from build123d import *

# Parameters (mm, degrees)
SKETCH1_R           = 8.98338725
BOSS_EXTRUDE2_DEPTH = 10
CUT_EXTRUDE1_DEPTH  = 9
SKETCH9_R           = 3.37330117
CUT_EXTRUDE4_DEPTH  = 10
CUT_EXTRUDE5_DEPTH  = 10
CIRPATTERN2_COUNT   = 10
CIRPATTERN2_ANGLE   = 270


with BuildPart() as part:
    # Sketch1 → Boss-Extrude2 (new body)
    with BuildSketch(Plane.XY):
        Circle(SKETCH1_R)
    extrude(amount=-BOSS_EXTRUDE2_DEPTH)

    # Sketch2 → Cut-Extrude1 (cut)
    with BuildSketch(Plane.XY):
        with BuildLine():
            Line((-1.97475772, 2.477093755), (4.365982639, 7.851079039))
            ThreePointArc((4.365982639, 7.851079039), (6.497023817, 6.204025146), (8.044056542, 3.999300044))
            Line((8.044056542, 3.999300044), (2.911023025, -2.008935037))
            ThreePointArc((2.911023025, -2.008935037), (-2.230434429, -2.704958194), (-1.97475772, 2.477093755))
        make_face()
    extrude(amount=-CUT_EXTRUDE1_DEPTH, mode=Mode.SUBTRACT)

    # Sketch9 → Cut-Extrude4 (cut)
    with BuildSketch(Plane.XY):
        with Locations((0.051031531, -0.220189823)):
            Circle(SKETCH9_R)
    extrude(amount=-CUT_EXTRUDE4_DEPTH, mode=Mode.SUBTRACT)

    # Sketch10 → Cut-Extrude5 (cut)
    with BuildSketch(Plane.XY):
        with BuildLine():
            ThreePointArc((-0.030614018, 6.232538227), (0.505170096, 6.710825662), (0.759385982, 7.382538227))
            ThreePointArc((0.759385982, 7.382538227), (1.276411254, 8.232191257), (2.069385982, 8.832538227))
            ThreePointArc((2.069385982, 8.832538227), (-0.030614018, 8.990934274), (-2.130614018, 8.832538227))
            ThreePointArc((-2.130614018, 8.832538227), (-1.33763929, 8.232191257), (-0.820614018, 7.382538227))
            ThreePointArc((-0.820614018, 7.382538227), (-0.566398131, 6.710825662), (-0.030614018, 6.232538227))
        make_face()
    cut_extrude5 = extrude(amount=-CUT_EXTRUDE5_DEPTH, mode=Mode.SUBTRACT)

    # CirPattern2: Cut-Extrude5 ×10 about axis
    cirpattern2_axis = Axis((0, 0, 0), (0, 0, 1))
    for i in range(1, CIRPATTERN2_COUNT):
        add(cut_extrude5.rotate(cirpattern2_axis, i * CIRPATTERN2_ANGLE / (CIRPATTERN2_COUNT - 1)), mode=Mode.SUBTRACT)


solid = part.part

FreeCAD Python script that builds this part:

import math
import FreeCAD as App
import Part
import Sketcher
from FreeCAD import Vector

doc = App.newDocument("Part")
body = doc.addObject("PartDesign::Body", "Body")

# Sketch on XY plane
sketch1 = body.newObject("Sketcher::SketchObject", "Sketch")
sketch1.AttachmentSupport = (doc.getObject("XY_Plane"), [""])
sketch1.MapMode = "FlatFace"
sketch1.addGeometry(Part.Circle(Vector(0, 0, 0), Vector(0, 0, 1), 9), False)
sketch1.addConstraint(Sketcher.Constraint("Coincident", 0, 3, -1, 1))
sketch1.addConstraint(Sketcher.Constraint("Diameter", 0, 17.966774))
pad1 = body.newObject("PartDesign::Pad", "Pad")
pad1.Profile = sketch1
pad1.Length = 10
pad1.Reversed = True

# Sketch on XY plane
sketch2 = body.newObject("Sketcher::SketchObject", "Sketch001")
sketch2.AttachmentSupport = (doc.getObject("XY_Plane"), [""])
sketch2.MapMode = "FlatFace"
sketch2.addGeometry(Part.LineSegment(Vector(4.4, 7.9, 0), Vector(-2, 2.5, 0)), False)
sketch2.addGeometry(Part.ArcOfCircle(Part.Circle(Vector(0.1, -0.2, 0), Vector(0, 0, 1), 3.4), math.radians(127), math.radians(328)), False)
sketch2.addGeometry(Part.LineSegment(Vector(2.9, -2, 0), Vector(8, 4, 0)), False)
sketch2.addGeometry(Part.ArcOfCircle(Part.Circle(Vector(0, 0, 0), Vector(0, 0, 1), 9), math.radians(26), math.radians(61)), False)
sketch2.addConstraint(Sketcher.Constraint("Coincident", 0, 2, 1, 1))
sketch2.addConstraint(Sketcher.Constraint("Coincident", 1, 2, 2, 1))
sketch2.addConstraint(Sketcher.Constraint("Coincident", 2, 2, 3, 1))
sketch2.addConstraint(Sketcher.Constraint("Coincident", 3, 2, 0, 1))
sketch2.addConstraint(Sketcher.Constraint("Coincident", 3, 3, -1, 1))
sketch2.addConstraint(Sketcher.Constraint("Radius", 1, 3.373301))
sketch2.addConstraint(Sketcher.Constraint("Radius", 3, 8.983387))
sketch2.addConstraint(Sketcher.Constraint("DistanceY", -1, 1, 2, 2, 3.9993))
sketch2.addConstraint(Sketcher.Constraint("Distance", 0, 8.311721))
sketch2.addConstraint(Sketcher.Constraint("DistanceX", -1, 1, 1, 3, 0.051032))
sketch2.addConstraint(Sketcher.Constraint("DistanceY", 1, 3, -1, 1, 0.22019))
sketch2.addConstraint(Sketcher.Constraint("DistanceY", -1, 1, 3, 2, 7.851079))
sketch2.addConstraint(Sketcher.Constraint("DistanceX", 1, 3, 1, 2, 2.859991))
pocket1 = body.newObject("PartDesign::Pocket", "Pocket")
pocket1.Profile = sketch2
pocket1.Length = 9

# Sketch on XY plane
sketch3 = body.newObject("Sketcher::SketchObject", "Sketch002")
sketch3.AttachmentSupport = (doc.getObject("XY_Plane"), [""])
sketch3.MapMode = "FlatFace"
sketch3.addGeometry(Part.Circle(Vector(0.1, -0.2, 0), Vector(0, 0, 1), 3.4), False)
sketch3.addConstraint(Sketcher.Constraint("Diameter", 0, 6.746602))
sketch3.addConstraint(Sketcher.Constraint("DistanceX", -1, 1, 0, 3, 0.051032))
sketch3.addConstraint(Sketcher.Constraint("DistanceY", 0, 3, -1, 1, 0.22019))
pocket2 = body.newObject("PartDesign::Pocket", "Pocket001")
pocket2.Profile = sketch3
pocket2.Length = 10

# Sketch on XY plane
sketch4 = body.newObject("Sketcher::SketchObject", "Sketch003")
sketch4.AttachmentSupport = (doc.getObject("XY_Plane"), [""])
sketch4.MapMode = "FlatFace"
sketch4.addGeometry(Part.ArcOfCircle(Part.Circle(Vector(-0.7, 7.6, 0), Vector(0, 0, 1), 1.5), math.radians(-62), math.radians(-7)), False)
sketch4.addGeometry(Part.ArcOfCircle(Part.Circle(Vector(3.3, 6.4, 0), Vector(0, 0, 1), 2.7), math.radians(116), math.radians(159)), False)
sketch4.addGeometry(Part.ArcOfCircle(Part.Circle(Vector(0, -5, 0), Vector(0, 0, 1), 14), math.radians(81.37), math.radians(98.63)), False)
sketch4.addGeometry(Part.ArcOfCircle(Part.Circle(Vector(-3.3, 6.4, 0), Vector(0, 0, 1), 2.7), math.radians(21), math.radians(64)), False)
sketch4.addGeometry(Part.ArcOfCircle(Part.Circle(Vector(0.7, 7.6, 0), Vector(0, 0, 1), 1.5), math.radians(-173), math.radians(-118)), False)
sketch4.addConstraint(Sketcher.Constraint("Coincident", 0, 2, 1, 2))
sketch4.addConstraint(Sketcher.Constraint("Coincident", 1, 1, 2, 1))
sketch4.addConstraint(Sketcher.Constraint("Coincident", 2, 2, 3, 2))
sketch4.addConstraint(Sketcher.Constraint("Coincident", 3, 1, 4, 1))
sketch4.addConstraint(Sketcher.Constraint("Coincident", 4, 2, 0, 1))
sketch4.addConstraint(Sketcher.Constraint("Equal", 1, 3))
sketch4.addConstraint(Sketcher.Constraint("Equal", 0, 4))
sketch4.addConstraint(Sketcher.Constraint("Horizontal", 1, 3, 3, 3))
sketch4.addConstraint(Sketcher.Constraint("Horizontal", 0, 3, 4, 3))
sketch4.addConstraint(Sketcher.Constraint("Horizontal", 1, 1, 2, 2))
sketch4.addConstraint(Sketcher.Constraint("Horizontal", 0, 2, 3, 1))
sketch4.addConstraint(Sketcher.Constraint("Radius", 2, 14.0))
sketch4.addConstraint(Sketcher.Constraint("Radius", 0, 1.51))
sketch4.addConstraint(Sketcher.Constraint("Radius", 1, 2.66))
sketch4.addConstraint(Sketcher.Constraint("DistanceX", 2, 2, 1, 1, 4.2))
sketch4.addConstraint(Sketcher.Constraint("DistanceX", 2, 3, 0, 2, 0.79))
sketch4.addConstraint(Sketcher.Constraint("DistanceY", 0, 2, 1, 1, 1.45))
sketch4.addConstraint(Sketcher.Constraint("DistanceY", 4, 2, 0, 2, 1.15))
sketch4.addConstraint(Sketcher.Constraint("DistanceX", 0, 3, -1, 1, 0.739449))
sketch4.addConstraint(Sketcher.Constraint("DistanceY", -1, 1, 1, 3, 6.448988))
pocket3 = body.newObject("PartDesign::Pocket", "Pocket002")
pocket3.Profile = sketch4
pocket3.Length = 10
doc.recompute()

polarpattern = body.newObject("PartDesign::PolarPattern", "PolarPattern")
polarpattern.Originals = [pocket3]
polarpattern.Axis = (doc.getObject("Z_Axis"), [""])
polarpattern.Angle = 270
polarpattern.Occurrences = 10
body.Tip = polarpattern

doc.recompute()
